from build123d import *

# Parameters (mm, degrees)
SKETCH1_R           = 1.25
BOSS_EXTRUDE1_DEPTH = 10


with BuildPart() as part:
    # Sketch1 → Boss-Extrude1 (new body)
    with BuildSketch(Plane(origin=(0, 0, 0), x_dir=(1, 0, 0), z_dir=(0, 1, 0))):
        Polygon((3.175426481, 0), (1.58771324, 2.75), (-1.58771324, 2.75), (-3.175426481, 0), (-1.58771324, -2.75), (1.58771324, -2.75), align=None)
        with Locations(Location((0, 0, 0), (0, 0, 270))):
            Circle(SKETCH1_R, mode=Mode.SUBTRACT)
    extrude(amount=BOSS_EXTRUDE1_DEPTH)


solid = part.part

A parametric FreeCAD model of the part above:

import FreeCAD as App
import Part
import Sketcher
from FreeCAD import Vector
Q = App.Units.Quantity


def add_polygon(sketch, points):
    """Adds a closed chain of lines whose ends are joined by coincident constraints."""
    first, n = sketch.GeometryCount, len(points)
    for a, b in zip(points, points[1:] + points[:1]):
        sketch.addGeometry(Part.LineSegment(App.Vector(*a, 0), App.Vector(*b, 0)), False)
    for i in range(n):
        sketch.addConstraint(Sketcher.Constraint("Coincident", first + i, 2, first + (i + 1) % n, 1))

doc = App.newDocument("Part")
params = doc.addObject("Spreadsheet::Sheet", "Params")
for row, (alias, value) in enumerate([
    ("sketch1_diameter", "2.5 mm"),
    ("pad1_length", "10 mm"),
], start=1):
    params.set(f"A{row}", alias)
    params.set(f"B{row}", "=" + value)
    params.setAlias(f"B{row}", alias)

body = doc.addObject("PartDesign::Body", "Body")

sketch1 = body.newObject("Sketcher::SketchObject", "Sketch")
sketch1.AttachmentSupport = (doc.getObject("XZ_Plane"), [""])
sketch1.MapMode = "FlatFace"
add_polygon(sketch1, [(3.2, 0), (1.6, -2.8), (-1.6, -2.8), (-3.2, 0), (-1.6, 2.8), (1.6, 2.8)])
sketch1.addGeometry(Part.Circle(Vector(0, 0, 0), Vector(0, 0, 1), 1.2), False)
sketch1.addConstraint(Sketcher.Constraint("Horizontal", 1))
sketch1.addConstraint(Sketcher.Constraint("Horizontal", 4))
sketch1.addConstraint(Sketcher.Constraint("Coincident", 6, 3, -1, 1))
sketch1.addConstraint(Sketcher.Constraint("Symmetric", 0, 2, 3, 2, -1, 1))
sketch1.addConstraint(Sketcher.Constraint("Symmetric", 2, 2, 5, 2, -1, 1))
sketch1.addConstraint(Sketcher.Constraint("PointOnObject", 2, 2, -1))
sketch1.addConstraint(Sketcher.Constraint("Parallel", 2, 5))
sketch1.addConstraint(Sketcher.Constraint("Vertical", 1, 2, 3, 2))
sketch1.addConstraint(Sketcher.Constraint("Diameter", 6, Q("2.5 mm")))
sketch1.addConstraint(Sketcher.Constraint("Angle", 0, Q("-120 deg")))
sketch1.addConstraint(Sketcher.Constraint("DistanceY", 1, 2, 3, 2, Q("5.5 mm")))
sketch1.addConstraint(Sketcher.Constraint("DistanceX", 1, 2, 1, 1, Q("3.175426 mm")))
sketch1.setExpression("Constraints[14]", "Params.sketch1_diameter")
pad1 = body.newObject("PartDesign::Pad", "Pad")
pad1.Profile = sketch1
pad1.setExpression("Length", "Params.pad1_length")
pad1.Reversed = True

doc.recompute()
